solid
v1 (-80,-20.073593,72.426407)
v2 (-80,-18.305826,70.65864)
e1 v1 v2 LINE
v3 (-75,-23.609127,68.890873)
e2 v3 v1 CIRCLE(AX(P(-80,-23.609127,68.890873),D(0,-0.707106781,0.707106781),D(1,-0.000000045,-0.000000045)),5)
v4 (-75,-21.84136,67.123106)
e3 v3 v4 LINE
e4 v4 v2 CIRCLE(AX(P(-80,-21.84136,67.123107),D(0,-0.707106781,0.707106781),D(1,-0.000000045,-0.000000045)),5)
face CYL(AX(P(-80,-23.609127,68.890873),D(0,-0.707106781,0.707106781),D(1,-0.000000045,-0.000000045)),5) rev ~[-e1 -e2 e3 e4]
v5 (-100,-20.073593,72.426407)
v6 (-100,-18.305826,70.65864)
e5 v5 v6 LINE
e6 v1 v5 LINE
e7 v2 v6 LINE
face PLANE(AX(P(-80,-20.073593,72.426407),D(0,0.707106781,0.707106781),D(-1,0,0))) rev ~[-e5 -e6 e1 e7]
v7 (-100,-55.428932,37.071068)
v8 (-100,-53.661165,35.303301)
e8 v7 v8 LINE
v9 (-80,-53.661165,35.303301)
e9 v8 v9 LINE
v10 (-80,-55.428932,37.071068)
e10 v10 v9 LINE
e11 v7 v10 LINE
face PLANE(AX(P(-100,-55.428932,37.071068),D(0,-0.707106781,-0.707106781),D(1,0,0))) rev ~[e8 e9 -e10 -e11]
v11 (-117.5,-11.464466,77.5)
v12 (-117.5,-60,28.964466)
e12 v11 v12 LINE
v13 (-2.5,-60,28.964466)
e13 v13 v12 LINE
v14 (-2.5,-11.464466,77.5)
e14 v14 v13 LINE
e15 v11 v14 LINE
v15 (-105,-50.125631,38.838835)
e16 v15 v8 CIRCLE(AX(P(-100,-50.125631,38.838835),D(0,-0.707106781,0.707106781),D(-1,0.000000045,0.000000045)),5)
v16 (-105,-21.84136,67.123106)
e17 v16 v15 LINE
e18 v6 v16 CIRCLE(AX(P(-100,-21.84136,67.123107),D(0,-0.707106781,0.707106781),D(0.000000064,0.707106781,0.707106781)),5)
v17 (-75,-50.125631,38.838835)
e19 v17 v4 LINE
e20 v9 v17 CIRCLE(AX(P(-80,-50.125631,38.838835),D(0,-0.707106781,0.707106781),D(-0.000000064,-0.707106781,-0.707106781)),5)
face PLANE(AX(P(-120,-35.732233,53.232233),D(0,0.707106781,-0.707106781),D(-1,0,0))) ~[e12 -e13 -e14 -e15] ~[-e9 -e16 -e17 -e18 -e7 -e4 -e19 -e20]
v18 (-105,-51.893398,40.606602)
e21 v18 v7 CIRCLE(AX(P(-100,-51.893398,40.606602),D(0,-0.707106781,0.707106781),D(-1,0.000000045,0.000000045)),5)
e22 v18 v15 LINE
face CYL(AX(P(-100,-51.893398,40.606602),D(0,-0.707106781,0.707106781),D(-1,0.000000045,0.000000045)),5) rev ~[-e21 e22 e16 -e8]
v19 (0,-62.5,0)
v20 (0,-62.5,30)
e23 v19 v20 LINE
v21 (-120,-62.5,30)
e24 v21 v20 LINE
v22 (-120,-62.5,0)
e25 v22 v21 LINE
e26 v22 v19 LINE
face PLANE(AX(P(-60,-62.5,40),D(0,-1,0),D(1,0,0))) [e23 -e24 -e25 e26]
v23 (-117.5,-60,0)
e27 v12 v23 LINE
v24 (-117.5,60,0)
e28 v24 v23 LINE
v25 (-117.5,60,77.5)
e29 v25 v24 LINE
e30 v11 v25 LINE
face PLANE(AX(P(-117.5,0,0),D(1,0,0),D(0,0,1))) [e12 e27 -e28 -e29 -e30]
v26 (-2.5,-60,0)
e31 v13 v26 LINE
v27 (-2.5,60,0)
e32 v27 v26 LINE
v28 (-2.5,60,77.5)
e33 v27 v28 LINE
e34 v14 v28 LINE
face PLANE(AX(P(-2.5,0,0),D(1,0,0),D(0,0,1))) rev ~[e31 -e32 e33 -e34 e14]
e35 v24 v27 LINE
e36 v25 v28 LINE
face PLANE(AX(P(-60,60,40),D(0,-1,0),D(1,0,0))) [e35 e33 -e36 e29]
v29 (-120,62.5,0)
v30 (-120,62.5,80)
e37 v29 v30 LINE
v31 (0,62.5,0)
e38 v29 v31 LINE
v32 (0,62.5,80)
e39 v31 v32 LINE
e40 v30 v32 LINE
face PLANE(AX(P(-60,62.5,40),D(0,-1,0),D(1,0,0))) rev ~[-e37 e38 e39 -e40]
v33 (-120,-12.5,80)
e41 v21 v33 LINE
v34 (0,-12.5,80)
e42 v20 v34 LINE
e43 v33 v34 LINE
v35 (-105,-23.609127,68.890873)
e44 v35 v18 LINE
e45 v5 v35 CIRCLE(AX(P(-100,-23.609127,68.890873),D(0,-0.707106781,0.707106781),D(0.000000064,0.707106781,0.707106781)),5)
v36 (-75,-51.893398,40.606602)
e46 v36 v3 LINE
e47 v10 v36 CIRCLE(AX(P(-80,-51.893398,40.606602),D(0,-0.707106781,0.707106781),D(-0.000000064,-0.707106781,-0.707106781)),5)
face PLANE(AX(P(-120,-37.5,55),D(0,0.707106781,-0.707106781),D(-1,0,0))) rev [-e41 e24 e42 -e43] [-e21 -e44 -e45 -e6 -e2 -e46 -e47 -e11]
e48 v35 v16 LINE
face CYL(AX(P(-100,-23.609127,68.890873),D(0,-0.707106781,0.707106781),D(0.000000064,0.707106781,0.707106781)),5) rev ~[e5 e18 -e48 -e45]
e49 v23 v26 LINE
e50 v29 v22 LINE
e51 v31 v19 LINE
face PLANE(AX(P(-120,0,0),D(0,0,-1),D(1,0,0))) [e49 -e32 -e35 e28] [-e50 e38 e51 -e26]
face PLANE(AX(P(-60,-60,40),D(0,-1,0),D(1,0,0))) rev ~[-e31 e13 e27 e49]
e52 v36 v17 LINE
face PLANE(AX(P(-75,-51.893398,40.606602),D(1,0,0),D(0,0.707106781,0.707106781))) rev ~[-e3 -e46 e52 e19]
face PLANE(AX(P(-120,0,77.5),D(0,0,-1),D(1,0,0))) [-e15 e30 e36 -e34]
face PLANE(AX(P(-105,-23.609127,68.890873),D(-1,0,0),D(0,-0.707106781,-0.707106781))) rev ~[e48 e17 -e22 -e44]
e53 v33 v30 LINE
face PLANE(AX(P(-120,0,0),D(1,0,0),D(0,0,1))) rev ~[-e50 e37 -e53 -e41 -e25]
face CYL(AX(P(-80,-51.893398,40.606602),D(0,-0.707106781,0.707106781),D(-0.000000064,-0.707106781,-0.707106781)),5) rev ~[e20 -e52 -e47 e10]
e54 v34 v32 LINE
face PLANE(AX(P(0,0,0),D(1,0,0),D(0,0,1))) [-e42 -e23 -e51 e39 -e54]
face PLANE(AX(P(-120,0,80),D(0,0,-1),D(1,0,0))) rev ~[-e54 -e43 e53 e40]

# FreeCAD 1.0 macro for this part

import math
import FreeCAD as App
import Part
import Sketcher
from FreeCAD import Vector
Q = App.Units.Quantity


def edges_at(feature, points):
    """Names of the edges that pass closest to the given points."""
    edges = feature.Shape.Edges
    near = lambda p: min(range(len(edges)), key=lambda i: edges[i].distToShape(Part.Vertex(*p))[0])
    return sorted({f"Edge{near(p) + 1}" for p in points})


def faces_at(feature, points):
    """Names of the faces that lie closest to the given points."""
    faces = feature.Shape.Faces
    near = lambda p: min(range(len(faces)), key=lambda i: faces[i].distToShape(Part.Vertex(*p))[0])
    return sorted({f"Face{near(p) + 1}" for p in points})

doc = App.newDocument("Part")
body = doc.addObject("PartDesign::Body", "Body")

# Sketch on XZ plane
sketch1 = body.newObject("Sketcher::SketchObject", "Sketch")
sketch1.AttachmentSupport = (doc.getObject("XZ_Plane"), [""])
sketch1.MapMode = "FlatFace"
sketch1.addGeometry([
    Part.LineSegment(Vector(-120, 80, 0), Vector(-120, 0, 0)),
    Part.LineSegment(Vector(-120, 0, 0), Vector(0, 0, 0)),
    Part.LineSegment(Vector(0, 0, 0), Vector(0, 80, 0)),
    Part.LineSegment(Vector(0, 80, 0), Vector(-120, 80, 0)),
], False)
sketch1.addConstraint([
    Sketcher.Constraint("Coincident", 0, 2, 1, 1),
    Sketcher.Constraint("Coincident", 1, 2, 2, 1),
    Sketcher.Constraint("Coincident", 2, 2, 3, 1),
    Sketcher.Constraint("Coincident", 3, 2, 0, 1),
    Sketcher.Constraint("Vertical", 0),
    Sketcher.Constraint("Horizontal", 1),
    Sketcher.Constraint("Vertical", 2),
    Sketcher.Constraint("Horizontal", 3),
    Sketcher.Constraint("Coincident", 1, 2, -1, 1),
    Sketcher.Constraint("DistanceX", 1, 1, 1, 2, Q("120 mm")),
    Sketcher.Constraint("DistanceY", 0, 2, 0, 1, Q("80 mm")),
])
pad1 = body.newObject("PartDesign::Pad", "Pad")
pad1.Profile = sketch1
pad1.Length = 125
pad1.Midplane = True
doc.recompute()

chamfer = body.newObject("PartDesign::Chamfer", "Chamfer")
chamfer.Base = (pad1, edges_at(pad1, [(-60, -62.5, 80)]))
chamfer.Size = 50
doc.recompute()

thickness = body.newObject("PartDesign::Thickness", "Thickness")
thickness.Base = (chamfer, faces_at(chamfer, [(-60, 0, 0)]))
thickness.Value = 2.5
thickness.Reversed = True
thickness.Join = "Arc"

# Sketch on an angled plane
sketch2 = body.newObject("Sketcher::SketchObject", "Sketch001")
sketch2.Placement = App.Placement(Vector(0, -46.25, 46.25), App.Rotation(Vector(1, 0, 0), Vector(0, 0.707106781, 0.707106781), Vector(0, -0.707106781, 0.707106781), "ZXY"))
sketch2.addGeometry([
    Part.LineSegment(Vector(-80, 37.01903, 0), Vector(-100, 37.01903, 0)),  # 0
    Part.ArcOfCircle(Part.Circle(Vector(-100, 32.01903, 0), Vector(0, 0, 1), 5), math.radians(89.999996), math.radians(180.000004)),  # 1
    Part.LineSegment(Vector(-105, 32.01903, 0), Vector(-105, -7.98097, 0)),  # 2
    Part.ArcOfCircle(Part.Circle(Vector(-100, -7.98097, 0), Vector(0, 0, 1), 5), math.radians(179.999996), math.radians(270.000004)),  # 3
    Part.LineSegment(Vector(-100, -12.98097, 0), Vector(-80, -12.98097, 0)),  # 4
    Part.ArcOfCircle(Part.Circle(Vector(-80, -7.98097, 0), Vector(0, 0, 1), 5), math.radians(-90.000004), math.radians(0.000004)),  # 5
    Part.LineSegment(Vector(-75, -7.98097, 0), Vector(-75, 32.01903, 0)),  # 6
    Part.ArcOfCircle(Part.Circle(Vector(-80, 32.01903, 0), Vector(0, 0, 1), 5), math.radians(-0.000004), math.radians(90.000004)),  # 7
], False)
sketch2.addConstraint([
    Sketcher.Constraint("Tangent", 0, 2, 1, 1),
    Sketcher.Constraint("Tangent", 1, 2, 2, 1),
    Sketcher.Constraint("Tangent", 2, 2, 3, 1),
    Sketcher.Constraint("Tangent", 3, 2, 4, 1),
    Sketcher.Constraint("Tangent", 4, 2, 5, 1),
    Sketcher.Constraint("Tangent", 5, 2, 6, 1),
    Sketcher.Constraint("Tangent", 6, 2, 7, 1),
    Sketcher.Constraint("Tangent", 7, 2, 0, 1),
    Sketcher.Constraint("Horizontal", 0),
    Sketcher.Constraint("Vertical", 2),
    Sketcher.Constraint("Horizontal", 4),
    Sketcher.Constraint("Vertical", 6),
    Sketcher.Constraint("Equal", 1, 3),
    Sketcher.Constraint("Equal", 3, 5),
    Sketcher.Constraint("Equal", 5, 7),
    Sketcher.Constraint("Radius", 1, Q("5 mm")),
    Sketcher.Constraint("DistanceX", 0, 2, 0, 1, Q("20 mm")),
    Sketcher.Constraint("DistanceY", 2, 2, 2, 1, Q("40 mm")),
    Sketcher.Constraint("DistanceX", 1, 3, -1, 1, Q("100 mm")),
    Sketcher.Constraint("DistanceY", -1, 1, 1, 3, Q("32.01903 mm")),
])
pocket1 = body.newObject("PartDesign::Pocket", "Pocket")
pocket1.Profile = sketch2
pocket1.Length = 25

doc.recompute()
